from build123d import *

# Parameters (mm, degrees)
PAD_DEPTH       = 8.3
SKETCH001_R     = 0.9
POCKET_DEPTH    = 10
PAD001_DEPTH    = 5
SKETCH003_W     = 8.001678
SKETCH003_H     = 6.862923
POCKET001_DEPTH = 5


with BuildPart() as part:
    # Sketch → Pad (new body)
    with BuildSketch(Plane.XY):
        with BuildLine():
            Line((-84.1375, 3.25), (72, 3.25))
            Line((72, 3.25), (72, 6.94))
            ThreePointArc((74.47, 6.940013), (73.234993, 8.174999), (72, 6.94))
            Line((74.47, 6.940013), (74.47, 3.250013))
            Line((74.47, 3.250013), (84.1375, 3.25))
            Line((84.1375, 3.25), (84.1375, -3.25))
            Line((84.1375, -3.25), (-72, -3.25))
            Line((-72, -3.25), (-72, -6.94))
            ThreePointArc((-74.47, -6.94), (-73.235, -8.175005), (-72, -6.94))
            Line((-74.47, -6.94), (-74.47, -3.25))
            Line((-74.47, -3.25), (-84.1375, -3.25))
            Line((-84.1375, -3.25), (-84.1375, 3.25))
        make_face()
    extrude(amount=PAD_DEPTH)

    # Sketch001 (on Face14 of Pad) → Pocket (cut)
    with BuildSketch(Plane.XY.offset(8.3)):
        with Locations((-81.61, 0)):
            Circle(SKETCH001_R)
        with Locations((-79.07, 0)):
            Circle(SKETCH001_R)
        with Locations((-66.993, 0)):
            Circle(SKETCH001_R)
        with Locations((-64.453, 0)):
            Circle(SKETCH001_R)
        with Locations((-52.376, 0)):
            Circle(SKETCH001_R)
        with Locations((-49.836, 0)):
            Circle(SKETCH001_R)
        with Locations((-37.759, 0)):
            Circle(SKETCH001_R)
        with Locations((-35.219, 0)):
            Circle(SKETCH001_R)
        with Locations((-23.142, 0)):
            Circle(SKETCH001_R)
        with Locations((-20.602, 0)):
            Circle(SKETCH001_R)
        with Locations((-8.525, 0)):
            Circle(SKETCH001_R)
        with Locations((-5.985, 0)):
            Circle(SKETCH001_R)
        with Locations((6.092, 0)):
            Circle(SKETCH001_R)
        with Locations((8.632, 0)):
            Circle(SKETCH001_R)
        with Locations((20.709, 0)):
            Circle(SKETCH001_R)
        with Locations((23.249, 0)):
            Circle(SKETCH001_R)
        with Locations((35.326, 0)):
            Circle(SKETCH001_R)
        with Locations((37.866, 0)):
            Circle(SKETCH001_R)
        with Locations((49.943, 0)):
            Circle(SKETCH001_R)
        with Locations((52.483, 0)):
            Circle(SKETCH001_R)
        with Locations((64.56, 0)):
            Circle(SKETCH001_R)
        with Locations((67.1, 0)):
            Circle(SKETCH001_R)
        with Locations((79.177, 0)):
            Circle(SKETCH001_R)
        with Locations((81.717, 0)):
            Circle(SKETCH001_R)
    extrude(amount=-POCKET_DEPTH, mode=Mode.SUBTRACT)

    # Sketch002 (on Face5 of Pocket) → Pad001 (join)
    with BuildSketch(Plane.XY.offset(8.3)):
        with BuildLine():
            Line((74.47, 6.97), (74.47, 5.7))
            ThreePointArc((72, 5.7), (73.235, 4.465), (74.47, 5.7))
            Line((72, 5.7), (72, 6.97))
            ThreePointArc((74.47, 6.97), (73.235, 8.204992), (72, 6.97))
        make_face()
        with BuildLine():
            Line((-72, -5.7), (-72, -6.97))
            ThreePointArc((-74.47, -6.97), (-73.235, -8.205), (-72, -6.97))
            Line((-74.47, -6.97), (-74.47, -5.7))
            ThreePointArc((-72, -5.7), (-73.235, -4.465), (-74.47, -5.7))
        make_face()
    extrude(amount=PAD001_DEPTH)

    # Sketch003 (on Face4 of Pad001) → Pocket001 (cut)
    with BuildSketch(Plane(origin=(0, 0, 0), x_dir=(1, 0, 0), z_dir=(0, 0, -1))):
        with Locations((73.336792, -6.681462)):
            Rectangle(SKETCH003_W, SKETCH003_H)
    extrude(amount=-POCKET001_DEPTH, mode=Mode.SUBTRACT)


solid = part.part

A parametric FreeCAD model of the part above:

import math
import FreeCAD as App
import Part
import Sketcher
from FreeCAD import Vector
Q = App.Units.Quantity


def add_polygon(sketch, points):
    """Adds a closed chain of lines whose ends are joined by coincident constraints."""
    first, n = sketch.GeometryCount, len(points)
    for a, b in zip(points, points[1:] + points[:1]):
        sketch.addGeometry(Part.LineSegment(App.Vector(*a, 0), App.Vector(*b, 0)), False)
    for i in range(n):
        sketch.addConstraint(Sketcher.Constraint("Coincident", first + i, 2, first + (i + 1) % n, 1))

doc = App.newDocument("Part")
params = doc.addObject("Spreadsheet::Sheet", "Params")
for row, (alias, value) in enumerate([
    ("sketch1_height", "6.5 mm"),
    ("sketch1_height2", "3.69 mm"),
    ("pad1_length", "8.3 mm"),
    ("sketch2_diameter", "1.8 mm"),
    ("pocket1_length", "10 mm"),
    ("sketch3_height", "1.27 mm"),
    ("pad2_length", "5 mm"),
    ("pocket2_length", "5 mm"),
], start=1):
    params.set(f"A{row}", alias)
    params.set(f"B{row}", "=" + value)
    params.setAlias(f"B{row}", alias)

body = doc.addObject("PartDesign::Body", "Body")

# Sketch on XY plane
sketch1 = doc.addObject("Sketcher::SketchObject", "Sketch")
body.addObject(sketch1)
sketch1.AttachmentSupport = (doc.XY_Plane, [""])
sketch1.MapMode = "FlatFace"
sketch1.addGeometry([
    Part.LineSegment(Vector(72, 3.2, 0), Vector(-84.1, 3.2, 0)),  # 0
    Part.LineSegment(Vector(-84.1, 3.2, 0), Vector(-84.1, -3.2, 0)),  # 1
    Part.LineSegment(Vector(-84.1, -3.2, 0), Vector(-74.5, -3.2, 0)),  # 2
    Part.LineSegment(Vector(-74.5, -3.2, 0), Vector(-74.5, -6.9, 0)),  # 3
    Part.ArcOfCircle(Part.Circle(Vector(-73.2, -6.9, 0), Vector(0, 0, 1), 1.2), math.radians(180), math.radians(360)),  # 4
    Part.LineSegment(Vector(-72, -6.9, 0), Vector(-72, -3.2, 0)),  # 5
    Part.LineSegment(Vector(-72, -3.2, 0), Vector(84.1, -3.2, 0)),  # 6
    Part.LineSegment(Vector(84.1, -3.2, 0), Vector(84.1, 3.2, 0)),  # 7
    Part.LineSegment(Vector(84.1, 3.2, 0), Vector(74.5, 3.3, 0)),  # 8
    Part.LineSegment(Vector(74.5, 3.3, 0), Vector(74.5, 6.9, 0)),  # 9
    Part.ArcOfCircle(Part.Circle(Vector(73.2, 6.9, 0), Vector(0, 0, 1), 1.2), math.radians(0), math.radians(180)),  # 10
    Part.LineSegment(Vector(72, 6.9, 0), Vector(72, 3.2, 0)),  # 11
], False)
sketch1.addConstraint([
    Sketcher.Constraint("Coincident", 0, 2, 1, 1),
    Sketcher.Constraint("Coincident", 1, 2, 2, 1),
    Sketcher.Constraint("Coincident", 2, 2, 3, 1),
    Sketcher.Constraint("Coincident", 3, 2, 4, 1),
    Sketcher.Constraint("Coincident", 4, 2, 5, 1),
    Sketcher.Constraint("Coincident", 5, 2, 6, 1),
    Sketcher.Constraint("Coincident", 6, 2, 7, 1),
    Sketcher.Constraint("Coincident", 7, 2, 8, 1),
    Sketcher.Constraint("Coincident", 8, 2, 9, 1),
    Sketcher.Constraint("Coincident", 9, 2, 10, 1),
    Sketcher.Constraint("Tangent", 10, 2, 11, 1),
    Sketcher.Constraint("Coincident", 11, 2, 0, 1),
    Sketcher.Constraint("Horizontal", 0),
    Sketcher.Constraint("Vertical", 1),
    Sketcher.Constraint("Horizontal", 2),
    Sketcher.Constraint("Vertical", 3),
    Sketcher.Constraint("Vertical", 5),
    Sketcher.Constraint("Horizontal", 6),
    Sketcher.Constraint("Vertical", 7),
    Sketcher.Constraint("Vertical", 9),
    Sketcher.Constraint("Vertical", 11),
    Sketcher.Constraint("Equal", 4, 10),
    Sketcher.Constraint("Symmetric", 4, 3, 10, 3, -1, 1),
    Sketcher.Constraint("Symmetric", 0, 2, 6, 2, -1, 1),
    Sketcher.Constraint("Horizontal", 3, 2, 4, 2),
    Sketcher.Constraint("Horizontal", 2, 2, 5, 2),
    Sketcher.Constraint("Horizontal", 0, 2, 7, 2),
    Sketcher.Constraint("Equal", 5, 9),
    Sketcher.Constraint("Equal", 9, 11),
    Sketcher.Constraint("DistanceY", 1, 2, 1, 1, Q("6.5 mm")),
    Sketcher.Constraint("DistanceX", 4, 2, -1, 1, Q("72 mm")),
    Sketcher.Constraint("Radius", 4, Q("1.235 mm")),
    Sketcher.Constraint("DistanceY", 3, 2, 3, 1, Q("3.69 mm")),
    Sketcher.Constraint("DistanceX", 0, 2, 0, 1, Q("156.1375 mm")),
    Sketcher.Constraint("DistanceY", -1, 1, 8, 2, Q("3.250013 mm")),
])
sketch1.setExpression("Constraints[29]", "Params.sketch1_height")
sketch1.setExpression("Constraints[32]", "Params.sketch1_height2")
pad1 = doc.addObject("PartDesign::Pad", "Pad")
body.addObject(pad1)
pad1.Profile = sketch1
pad1.setExpression("Length", "Params.pad1_length")

# Sketch on XY plane
sketch2 = doc.addObject("Sketcher::SketchObject", "Sketch001")
body.addObject(sketch2)
sketch2.AttachmentSupport = (doc.XY_Plane, [""])
sketch2.MapMode = "FlatFace"
sketch2.AttachmentOffset = App.Placement(Vector(0, 0, 8.3), App.Rotation())
sketch2.addGeometry([
    Part.Circle(Vector(-81.6, 0, 0), Vector(0, 0, 1), 0.9),  # 0
    Part.Circle(Vector(-79.1, 0, 0), Vector(0, 0, 1), 0.9),  # 1
    Part.Circle(Vector(-67, 0, 0), Vector(0, 0, 1), 0.9),  # 2
    Part.Circle(Vector(-64.5, 0, 0), Vector(0, 0, 1), 0.9),  # 3
    Part.Circle(Vector(-52.4, 0, 0), Vector(0, 0, 1), 0.9),  # 4
    Part.Circle(Vector(-49.8, 0, 0), Vector(0, 0, 1), 0.9),  # 5
    Part.Circle(Vector(-37.8, 0, 0), Vector(0, 0, 1), 0.9),  # 6
    Part.Circle(Vector(-35.2, 0, 0), Vector(0, 0, 1), 0.9),  # 7
    Part.Circle(Vector(-23.1, 0, 0), Vector(0, 0, 1), 0.9),  # 8
    Part.Circle(Vector(-20.6, 0, 0), Vector(0, 0, 1), 0.9),  # 9
    Part.Circle(Vector(-8.5, 0, 0), Vector(0, 0, 1), 0.9),  # 10
    Part.Circle(Vector(-6, 0, 0), Vector(0, 0, 1), 0.9),  # 11
    Part.Circle(Vector(6.1, 0, 0), Vector(0, 0, 1), 0.9),  # 12
    Part.Circle(Vector(8.6, 0, 0), Vector(0, 0, 1), 0.9),  # 13
    Part.Circle(Vector(20.7, 0, 0), Vector(0, 0, 1), 0.9),  # 14
    Part.Circle(Vector(23.2, 0, 0), Vector(0, 0, 1), 0.9),  # 15
    Part.Circle(Vector(35.3, 0, 0), Vector(0, 0, 1), 0.9),  # 16
    Part.Circle(Vector(37.9, 0, 0), Vector(0, 0, 1), 0.9),  # 17
    Part.Circle(Vector(49.9, 0, 0), Vector(0, 0, 1), 0.9),  # 18
    Part.Circle(Vector(52.5, 0, 0), Vector(0, 0, 1), 0.9),  # 19
    Part.Circle(Vector(64.6, 0, 0), Vector(0, 0, 1), 0.9),  # 20
    Part.Circle(Vector(67.1, 0, 0), Vector(0, 0, 1), 0.9),  # 21
    Part.Circle(Vector(79.2, 0, 0), Vector(0, 0, 1), 0.9),  # 22
    Part.Circle(Vector(81.7, 0, 0), Vector(0, 0, 1), 0.9),  # 23
], False)
sketch2.addConstraint([
    Sketcher.Constraint("Equal", 0, 1),
    Sketcher.Constraint("Equal", 1, 2),
    Sketcher.Constraint("Equal", 2, 3),
    Sketcher.Constraint("Equal", 3, 4),
    Sketcher.Constraint("Equal", 4, 5),
    Sketcher.Constraint("Equal", 5, 6),
    Sketcher.Constraint("Equal", 6, 7),
    Sketcher.Constraint("Equal", 7, 8),
    Sketcher.Constraint("Equal", 8, 9),
    Sketcher.Constraint("Equal", 9, 10),
    Sketcher.Constraint("Equal", 10, 11),
    Sketcher.Constraint("Equal", 11, 12),
    Sketcher.Constraint("Equal", 12, 13),
    Sketcher.Constraint("Equal", 13, 14),
    Sketcher.Constraint("Equal", 14, 15),
    Sketcher.Constraint("Equal", 15, 16),
    Sketcher.Constraint("Equal", 16, 17),
    Sketcher.Constraint("Equal", 17, 18),
    Sketcher.Constraint("Equal", 18, 19),
    Sketcher.Constraint("Equal", 19, 20),
    Sketcher.Constraint("Equal", 20, 21),
    Sketcher.Constraint("Equal", 21, 22),
    Sketcher.Constraint("Equal", 22, 23),
    Sketcher.Constraint("PointOnObject", 0, 3, -1),
    Sketcher.Constraint("PointOnObject", 1, 3, -1),
    Sketcher.Constraint("PointOnObject", 2, 3, -1),
    Sketcher.Constraint("PointOnObject", 3, 3, -1),
    Sketcher.Constraint("PointOnObject", 4, 3, -1),
    Sketcher.Constraint("PointOnObject", 5, 3, -1),
    Sketcher.Constraint("PointOnObject", 6, 3, -1),
    Sketcher.Constraint("PointOnObject", 7, 3, -1),
    Sketcher.Constraint("PointOnObject", 8, 3, -1),
    Sketcher.Constraint("PointOnObject", 9, 3, -1),
    Sketcher.Constraint("PointOnObject", 10, 3, -1),
    Sketcher.Constraint("PointOnObject", 11, 3, -1),
    Sketcher.Constraint("PointOnObject", 12, 3, -1),
    Sketcher.Constraint("PointOnObject", 13, 3, -1),
    Sketcher.Constraint("PointOnObject", 14, 3, -1),
    Sketcher.Constraint("PointOnObject", 15, 3, -1),
    Sketcher.Constraint("PointOnObject", 16, 3, -1),
    Sketcher.Constraint("PointOnObject", 17, 3, -1),
    Sketcher.Constraint("PointOnObject", 18, 3, -1),
    Sketcher.Constraint("PointOnObject", 19, 3, -1),
    Sketcher.Constraint("PointOnObject", 20, 3, -1),
    Sketcher.Constraint("PointOnObject", 21, 3, -1),
    Sketcher.Constraint("PointOnObject", 22, 3, -1),
    Sketcher.Constraint("PointOnObject", 23, 3, -1),
    Sketcher.Constraint("Diameter", 0, Q("1.8 mm")),
    Sketcher.Constraint("DistanceX", -1, 1, 21, 3, Q("67.1 mm")),
    Sketcher.Constraint("DistanceX", 0, 3, -1, 1, Q("81.61 mm")),
    Sketcher.Constraint("DistanceX", 1, 3, -1, 1, Q("79.07 mm")),
    Sketcher.Constraint("DistanceX", -1, 1, 20, 3, Q("64.56 mm")),
    Sketcher.Constraint("DistanceX", 2, 3, 3, 3, Q("2.54 mm")),
    Sketcher.Constraint("DistanceX", 4, 3, 5, 3, Q("2.54 mm")),
    Sketcher.Constraint("DistanceX", 6, 3, 7, 3, Q("2.54 mm")),
    Sketcher.Constraint("DistanceX", 8, 3, 9, 3, Q("2.54 mm")),
    Sketcher.Constraint("DistanceX", 10, 3, 11, 3, Q("2.54 mm")),
    Sketcher.Constraint("DistanceX", 12, 3, 13, 3, Q("2.54 mm")),
    Sketcher.Constraint("DistanceX", 14, 3, 15, 3, Q("2.54 mm")),
    Sketcher.Constraint("DistanceX", 16, 3, 17, 3, Q("2.54 mm")),
    Sketcher.Constraint("DistanceX", 18, 3, 19, 3, Q("2.54 mm")),
    Sketcher.Constraint("DistanceX", 22, 3, 23, 3, Q("2.54 mm")),
    Sketcher.Constraint("DistanceX", 2, 3, -1, 1, Q("66.993 mm")),
    Sketcher.Constraint("DistanceX", 4, 3, -1, 1, Q("52.376 mm")),
    Sketcher.Constraint("DistanceX", 6, 3, -1, 1, Q("37.759 mm")),
    Sketcher.Constraint("DistanceX", 8, 3, -1, 1, Q("23.142 mm")),
    Sketcher.Constraint("DistanceX", 10, 3, -1, 1, Q("8.525 mm")),
    Sketcher.Constraint("DistanceX", -1, 1, 12, 3, Q("6.092 mm")),
    Sketcher.Constraint("DistanceX", -1, 1, 14, 3, Q("20.709 mm")),
    Sketcher.Constraint("DistanceX", -1, 1, 16, 3, Q("35.326 mm")),
    Sketcher.Constraint("DistanceX", -1, 1, 18, 3, Q("49.943 mm")),
    Sketcher.Constraint("DistanceX", -1, 1, 22, 3, Q("79.177 mm")),
])
sketch2.setExpression("Constraints[47]", "Params.sketch2_diameter")
pocket1 = doc.addObject("PartDesign::Pocket", "Pocket")
body.addObject(pocket1)
pocket1.Profile = sketch2
pocket1.setExpression("Length", "Params.pocket1_length")

# Sketch on XY plane
sketch3 = doc.addObject("Sketcher::SketchObject", "Sketch002")
body.addObject(sketch3)
sketch3.AttachmentSupport = (doc.XY_Plane, [""])
sketch3.MapMode = "FlatFace"
sketch3.AttachmentOffset = App.Placement(Vector(0, 0, 8.3), App.Rotation())
sketch3.addGeometry([
    Part.LineSegment(Vector(74.5, 5.7, 0), Vector(74.5, 7, 0)),  # 0
    Part.ArcOfCircle(Part.Circle(Vector(73.2, 7, 0), Vector(0, 0, 1), 1.2), math.radians(0), math.radians(180)),  # 1
    Part.LineSegment(Vector(72, 7, 0), Vector(72, 5.7, 0)),  # 2
    Part.ArcOfCircle(Part.Circle(Vector(73.2, 5.7, 0), Vector(0, 0, 1), 1.2), math.radians(180), math.radians(360)),  # 3
    Part.LineSegment(Vector(-72, -7, 0), Vector(-72, -5.7, 0)),  # 4
    Part.ArcOfCircle(Part.Circle(Vector(-73.2, -5.7, 0), Vector(0, 0, 1), 1.2), math.radians(0), math.radians(180)),  # 5
    Part.LineSegment(Vector(-74.5, -5.7, 0), Vector(-74.5, -7, 0)),  # 6
    Part.ArcOfCircle(Part.Circle(Vector(-73.2, -7, 0), Vector(0, 0, 1), 1.2), math.radians(180), math.radians(360)),  # 7
], False)
sketch3.addConstraint([
    Sketcher.Constraint("Coincident", 0, 2, 1, 1),
    Sketcher.Constraint("Coincident", 1, 2, 2, 1),
    Sketcher.Constraint("Tangent", 2, 2, 3, 1),
    Sketcher.Constraint("Tangent", 3, 2, 0, 1),
    Sketcher.Constraint("Tangent", 4, 2, 5, 1),
    Sketcher.Constraint("Tangent", 5, 2, 6, 1),
    Sketcher.Constraint("Tangent", 6, 2, 7, 1),
    Sketcher.Constraint("Tangent", 7, 2, 4, 1),
    Sketcher.Constraint("Vertical", 0),
    Sketcher.Constraint("Vertical", 2),
    Sketcher.Constraint("Vertical", 4),
    Sketcher.Constraint("Vertical", 6),
    Sketcher.Constraint("Equal", 3, 5),
    Sketcher.Constraint("Symmetric", 3, 3, 5, 3, -1, 1),
    Sketcher.Constraint("Horizontal", 0, 2, 1, 2),
    Sketcher.Constraint("Equal", 2, 4),
    Sketcher.Constraint("DistanceX", -1, 1, 1, 2, Q("72 mm")),
    Sketcher.Constraint("Radius", 1, Q("1.235 mm")),
    Sketcher.Constraint("DistanceY", 0, 1, 0, 2, Q("1.27 mm")),
    Sketcher.Constraint("DistanceY", -1, 1, 3, 3, Q("5.7 mm")),
    Sketcher.Constraint("DistanceY", -1, 1, 1, 3, Q("6.969992 mm")),
])
sketch3.setExpression("Constraints[18]", "Params.sketch3_height")
pad2 = doc.addObject("PartDesign::Pad", "Pad001")
body.addObject(pad2)
pad2.Profile = sketch3
pad2.setExpression("Length", "Params.pad2_length")

# Sketch on XY plane
sketch4 = doc.addObject("Sketcher::SketchObject", "Sketch003")
body.addObject(sketch4)
sketch4.AttachmentSupport = (doc.XY_Plane, [""])
sketch4.MapMode = "FlatFace"
add_polygon(sketch4, [(69, 3), (69, 10), (77, 10), (77, 3)])  # lines 0-3
sketch4.addConstraint([
    Sketcher.Constraint("Vertical", 0),
    Sketcher.Constraint("Horizontal", 1),
    Sketcher.Constraint("Vertical", 2),
    Sketcher.Constraint("Horizontal", 3),
    Sketcher.Constraint("DistanceY", -1, 1, 2, 2, Q("3.250001 mm")),
    Sketcher.Constraint("DistanceX", 1, 1, 1, 2, Q("8.001678 mm")),
    Sketcher.Constraint("DistanceY", 0, 1, 0, 2, Q("6.862923 mm")),
    Sketcher.Constraint("DistanceX", -1, 1, 1, 2, Q("77.337631 mm")),
])
pocket2 = doc.addObject("PartDesign::Pocket", "Pocket001")
body.addObject(pocket2)
pocket2.Profile = sketch4
pocket2.setExpression("Length", "Params.pocket2_length")
pocket2.Reversed = True

doc.recompute()
